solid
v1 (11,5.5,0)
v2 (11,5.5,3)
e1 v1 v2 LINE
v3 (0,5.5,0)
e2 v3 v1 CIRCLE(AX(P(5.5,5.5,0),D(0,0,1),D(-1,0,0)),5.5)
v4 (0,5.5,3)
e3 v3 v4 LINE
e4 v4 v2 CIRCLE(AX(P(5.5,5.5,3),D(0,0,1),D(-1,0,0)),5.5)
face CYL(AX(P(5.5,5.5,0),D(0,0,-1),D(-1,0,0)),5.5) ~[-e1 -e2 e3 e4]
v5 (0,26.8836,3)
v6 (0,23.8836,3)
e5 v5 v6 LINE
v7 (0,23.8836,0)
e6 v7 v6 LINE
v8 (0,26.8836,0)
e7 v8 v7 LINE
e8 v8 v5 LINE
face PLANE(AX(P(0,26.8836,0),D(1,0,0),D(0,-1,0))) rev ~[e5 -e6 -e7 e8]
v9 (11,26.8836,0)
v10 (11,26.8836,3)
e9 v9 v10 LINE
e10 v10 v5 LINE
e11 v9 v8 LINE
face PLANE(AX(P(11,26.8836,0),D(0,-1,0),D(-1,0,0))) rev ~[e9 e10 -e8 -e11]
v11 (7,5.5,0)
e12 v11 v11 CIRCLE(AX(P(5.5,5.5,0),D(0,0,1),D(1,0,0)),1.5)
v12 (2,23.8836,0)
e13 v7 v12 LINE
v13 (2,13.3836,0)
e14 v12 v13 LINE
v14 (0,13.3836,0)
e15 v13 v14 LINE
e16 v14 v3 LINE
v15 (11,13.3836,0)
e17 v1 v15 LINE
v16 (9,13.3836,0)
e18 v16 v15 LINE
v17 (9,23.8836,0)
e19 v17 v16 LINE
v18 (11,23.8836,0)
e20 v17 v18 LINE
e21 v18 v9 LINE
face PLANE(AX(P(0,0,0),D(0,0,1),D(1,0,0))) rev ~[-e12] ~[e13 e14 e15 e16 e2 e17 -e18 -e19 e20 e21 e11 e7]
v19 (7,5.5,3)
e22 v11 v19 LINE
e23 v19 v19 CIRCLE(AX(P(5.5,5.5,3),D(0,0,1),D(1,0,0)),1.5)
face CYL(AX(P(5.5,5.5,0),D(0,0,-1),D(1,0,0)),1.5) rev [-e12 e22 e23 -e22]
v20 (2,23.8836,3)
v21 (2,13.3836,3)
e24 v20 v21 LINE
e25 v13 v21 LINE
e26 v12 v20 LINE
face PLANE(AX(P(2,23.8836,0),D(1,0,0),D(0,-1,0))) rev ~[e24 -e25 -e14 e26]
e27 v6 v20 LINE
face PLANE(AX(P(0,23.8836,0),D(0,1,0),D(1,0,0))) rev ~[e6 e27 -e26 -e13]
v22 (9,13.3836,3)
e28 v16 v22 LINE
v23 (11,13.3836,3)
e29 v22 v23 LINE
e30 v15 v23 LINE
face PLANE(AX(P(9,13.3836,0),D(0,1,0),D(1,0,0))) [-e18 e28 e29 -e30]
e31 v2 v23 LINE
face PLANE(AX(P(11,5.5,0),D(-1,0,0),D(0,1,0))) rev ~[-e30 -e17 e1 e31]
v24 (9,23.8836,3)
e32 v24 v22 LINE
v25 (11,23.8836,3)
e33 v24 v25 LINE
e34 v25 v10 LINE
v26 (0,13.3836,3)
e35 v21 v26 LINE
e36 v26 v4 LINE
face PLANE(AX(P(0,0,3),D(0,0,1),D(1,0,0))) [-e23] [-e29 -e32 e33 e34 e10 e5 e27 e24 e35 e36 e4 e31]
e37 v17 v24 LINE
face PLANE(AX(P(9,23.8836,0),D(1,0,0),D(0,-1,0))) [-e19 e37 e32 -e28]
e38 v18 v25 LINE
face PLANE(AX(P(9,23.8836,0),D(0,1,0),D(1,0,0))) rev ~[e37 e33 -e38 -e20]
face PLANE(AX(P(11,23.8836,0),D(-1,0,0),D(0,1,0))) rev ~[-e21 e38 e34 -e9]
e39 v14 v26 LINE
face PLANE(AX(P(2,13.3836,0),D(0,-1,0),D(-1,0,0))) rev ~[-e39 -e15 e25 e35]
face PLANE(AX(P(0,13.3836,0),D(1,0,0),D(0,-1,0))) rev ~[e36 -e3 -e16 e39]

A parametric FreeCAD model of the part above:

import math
import FreeCAD as App
import Part
import Sketcher

V = App.Vector
Q = App.Units.Quantity

doc = App.newDocument("Part")
params = doc.addObject("Spreadsheet::Sheet", "Params")
for row, (alias, value) in enumerate([
    ("sketch1_diameter", "3 mm"),
    ("sketch1_radius", "5.5 mm"),
    ("sketch1_width", "2 mm"),
    ("sketch1_height", "3 mm"),
    ("sketch1_height2", "10.5 mm"),
    ("pad1_length", "3 mm"),
], start=1):
    params.set(f"A{row}", alias)
    params.set(f"B{row}", "=" + value)
    params.setAlias(f"B{row}", alias)

body = doc.addObject("PartDesign::Body", "Body")

sketch1 = body.newObject("Sketcher::SketchObject", "Sketch")
sketch1.AttachmentSupport = (doc.getObject("XY_Plane"), [""])
sketch1.MapMode = "FlatFace"
sketch1.addGeometry([
    Part.LineSegment(V(11, 23.9, 0), V(11, 26.9, 0)),
    Part.LineSegment(V(11, 26.9, 0), V(0, 26.9, 0)),
    Part.LineSegment(V(0, 26.9, 0), V(0, 23.9, 0)),
    Part.LineSegment(V(0, 23.9, 0), V(2, 23.9, 0)),
    Part.LineSegment(V(2, 23.9, 0), V(2, 13.4, 0)),
    Part.LineSegment(V(2, 13.4, 0), V(0, 13.4, 0)),
    Part.LineSegment(V(0, 13.4, 0), V(0, 5.5, 0)),
    Part.ArcOfCircle(Part.Circle(V(5.5, 5.5, 0), V(0, 0, 1), 5.5), math.radians(180), math.radians(360)),
    Part.LineSegment(V(11, 5.5, 0), V(11, 13.4, 0)),
    Part.LineSegment(V(11, 13.4, 0), V(9, 13.4, 0)),
    Part.LineSegment(V(9, 13.4, 0), V(9, 23.9, 0)),
    Part.LineSegment(V(9, 23.9, 0), V(11, 23.9, 0)),
    Part.Circle(V(5.5, 5.5, 0), V(0, 0, 1), 1.5),
], False)
sketch1.addConstraint([
    Sketcher.Constraint("Coincident", 0, 2, 1, 1),
    Sketcher.Constraint("Coincident", 1, 2, 2, 1),
    Sketcher.Constraint("Coincident", 2, 2, 3, 1),
    Sketcher.Constraint("Coincident", 3, 2, 4, 1),
    Sketcher.Constraint("Coincident", 4, 2, 5, 1),
    Sketcher.Constraint("Coincident", 5, 2, 6, 1),
    Sketcher.Constraint("Tangent", 6, 2, 7, 1),
    Sketcher.Constraint("Tangent", 7, 2, 8, 1),
    Sketcher.Constraint("Coincident", 8, 2, 9, 1),
    Sketcher.Constraint("Coincident", 9, 2, 10, 1),
    Sketcher.Constraint("Coincident", 10, 2, 11, 1),
    Sketcher.Constraint("Coincident", 11, 2, 0, 1),
    Sketcher.Constraint("Vertical", 0),
    Sketcher.Constraint("Horizontal", 1),
    Sketcher.Constraint("Vertical", 2),
    Sketcher.Constraint("Horizontal", 3),
    Sketcher.Constraint("Vertical", 4),
    Sketcher.Constraint("Horizontal", 5),
    Sketcher.Constraint("Vertical", 6),
    Sketcher.Constraint("Vertical", 8),
    Sketcher.Constraint("Horizontal", 9),
    Sketcher.Constraint("Vertical", 10),
    Sketcher.Constraint("Horizontal", 11),
    Sketcher.Constraint("Coincident", 12, 3, 7, 3),
    Sketcher.Constraint("PointOnObject", 1, 2, -2),
    Sketcher.Constraint("PointOnObject", 5, 2, -2),
    Sketcher.Constraint("Horizontal", 5, 2, 8, 2),
    Sketcher.Constraint("Horizontal", 3, 2, 10, 2),
    Sketcher.Constraint("Vertical", 0, 2, 7, 2),
    Sketcher.Constraint("Equal", 5, 9),
    Sketcher.Constraint("Diameter", 12, Q("3 mm")),
    Sketcher.Constraint("Radius", 7, Q("5.5 mm")),
    Sketcher.Constraint("DistanceX", 3, 1, 3, 2, Q("2 mm")),
    Sketcher.Constraint("DistanceY", 0, 1, 0, 2, Q("3 mm")),
    Sketcher.Constraint("DistanceY", 4, 2, 4, 1, Q("10.5 mm")),
    Sketcher.Constraint("DistanceY", 6, 2, 6, 1, Q("7.8836 mm")),
    Sketcher.Constraint("DistanceY", -1, 1, 7, 3, Q("5.5 mm")),
])
sketch1.setExpression("Constraints[30]", "Params.sketch1_diameter")
sketch1.setExpression("Constraints[31]", "Params.sketch1_radius")
sketch1.setExpression("Constraints[32]", "Params.sketch1_width")
sketch1.setExpression("Constraints[33]", "Params.sketch1_height")
sketch1.setExpression("Constraints[34]", "Params.sketch1_height2")
pad1 = body.newObject("PartDesign::Pad", "Pad")
pad1.Profile = sketch1
pad1.setExpression("Length", "Params.pad1_length")

doc.recompute()
